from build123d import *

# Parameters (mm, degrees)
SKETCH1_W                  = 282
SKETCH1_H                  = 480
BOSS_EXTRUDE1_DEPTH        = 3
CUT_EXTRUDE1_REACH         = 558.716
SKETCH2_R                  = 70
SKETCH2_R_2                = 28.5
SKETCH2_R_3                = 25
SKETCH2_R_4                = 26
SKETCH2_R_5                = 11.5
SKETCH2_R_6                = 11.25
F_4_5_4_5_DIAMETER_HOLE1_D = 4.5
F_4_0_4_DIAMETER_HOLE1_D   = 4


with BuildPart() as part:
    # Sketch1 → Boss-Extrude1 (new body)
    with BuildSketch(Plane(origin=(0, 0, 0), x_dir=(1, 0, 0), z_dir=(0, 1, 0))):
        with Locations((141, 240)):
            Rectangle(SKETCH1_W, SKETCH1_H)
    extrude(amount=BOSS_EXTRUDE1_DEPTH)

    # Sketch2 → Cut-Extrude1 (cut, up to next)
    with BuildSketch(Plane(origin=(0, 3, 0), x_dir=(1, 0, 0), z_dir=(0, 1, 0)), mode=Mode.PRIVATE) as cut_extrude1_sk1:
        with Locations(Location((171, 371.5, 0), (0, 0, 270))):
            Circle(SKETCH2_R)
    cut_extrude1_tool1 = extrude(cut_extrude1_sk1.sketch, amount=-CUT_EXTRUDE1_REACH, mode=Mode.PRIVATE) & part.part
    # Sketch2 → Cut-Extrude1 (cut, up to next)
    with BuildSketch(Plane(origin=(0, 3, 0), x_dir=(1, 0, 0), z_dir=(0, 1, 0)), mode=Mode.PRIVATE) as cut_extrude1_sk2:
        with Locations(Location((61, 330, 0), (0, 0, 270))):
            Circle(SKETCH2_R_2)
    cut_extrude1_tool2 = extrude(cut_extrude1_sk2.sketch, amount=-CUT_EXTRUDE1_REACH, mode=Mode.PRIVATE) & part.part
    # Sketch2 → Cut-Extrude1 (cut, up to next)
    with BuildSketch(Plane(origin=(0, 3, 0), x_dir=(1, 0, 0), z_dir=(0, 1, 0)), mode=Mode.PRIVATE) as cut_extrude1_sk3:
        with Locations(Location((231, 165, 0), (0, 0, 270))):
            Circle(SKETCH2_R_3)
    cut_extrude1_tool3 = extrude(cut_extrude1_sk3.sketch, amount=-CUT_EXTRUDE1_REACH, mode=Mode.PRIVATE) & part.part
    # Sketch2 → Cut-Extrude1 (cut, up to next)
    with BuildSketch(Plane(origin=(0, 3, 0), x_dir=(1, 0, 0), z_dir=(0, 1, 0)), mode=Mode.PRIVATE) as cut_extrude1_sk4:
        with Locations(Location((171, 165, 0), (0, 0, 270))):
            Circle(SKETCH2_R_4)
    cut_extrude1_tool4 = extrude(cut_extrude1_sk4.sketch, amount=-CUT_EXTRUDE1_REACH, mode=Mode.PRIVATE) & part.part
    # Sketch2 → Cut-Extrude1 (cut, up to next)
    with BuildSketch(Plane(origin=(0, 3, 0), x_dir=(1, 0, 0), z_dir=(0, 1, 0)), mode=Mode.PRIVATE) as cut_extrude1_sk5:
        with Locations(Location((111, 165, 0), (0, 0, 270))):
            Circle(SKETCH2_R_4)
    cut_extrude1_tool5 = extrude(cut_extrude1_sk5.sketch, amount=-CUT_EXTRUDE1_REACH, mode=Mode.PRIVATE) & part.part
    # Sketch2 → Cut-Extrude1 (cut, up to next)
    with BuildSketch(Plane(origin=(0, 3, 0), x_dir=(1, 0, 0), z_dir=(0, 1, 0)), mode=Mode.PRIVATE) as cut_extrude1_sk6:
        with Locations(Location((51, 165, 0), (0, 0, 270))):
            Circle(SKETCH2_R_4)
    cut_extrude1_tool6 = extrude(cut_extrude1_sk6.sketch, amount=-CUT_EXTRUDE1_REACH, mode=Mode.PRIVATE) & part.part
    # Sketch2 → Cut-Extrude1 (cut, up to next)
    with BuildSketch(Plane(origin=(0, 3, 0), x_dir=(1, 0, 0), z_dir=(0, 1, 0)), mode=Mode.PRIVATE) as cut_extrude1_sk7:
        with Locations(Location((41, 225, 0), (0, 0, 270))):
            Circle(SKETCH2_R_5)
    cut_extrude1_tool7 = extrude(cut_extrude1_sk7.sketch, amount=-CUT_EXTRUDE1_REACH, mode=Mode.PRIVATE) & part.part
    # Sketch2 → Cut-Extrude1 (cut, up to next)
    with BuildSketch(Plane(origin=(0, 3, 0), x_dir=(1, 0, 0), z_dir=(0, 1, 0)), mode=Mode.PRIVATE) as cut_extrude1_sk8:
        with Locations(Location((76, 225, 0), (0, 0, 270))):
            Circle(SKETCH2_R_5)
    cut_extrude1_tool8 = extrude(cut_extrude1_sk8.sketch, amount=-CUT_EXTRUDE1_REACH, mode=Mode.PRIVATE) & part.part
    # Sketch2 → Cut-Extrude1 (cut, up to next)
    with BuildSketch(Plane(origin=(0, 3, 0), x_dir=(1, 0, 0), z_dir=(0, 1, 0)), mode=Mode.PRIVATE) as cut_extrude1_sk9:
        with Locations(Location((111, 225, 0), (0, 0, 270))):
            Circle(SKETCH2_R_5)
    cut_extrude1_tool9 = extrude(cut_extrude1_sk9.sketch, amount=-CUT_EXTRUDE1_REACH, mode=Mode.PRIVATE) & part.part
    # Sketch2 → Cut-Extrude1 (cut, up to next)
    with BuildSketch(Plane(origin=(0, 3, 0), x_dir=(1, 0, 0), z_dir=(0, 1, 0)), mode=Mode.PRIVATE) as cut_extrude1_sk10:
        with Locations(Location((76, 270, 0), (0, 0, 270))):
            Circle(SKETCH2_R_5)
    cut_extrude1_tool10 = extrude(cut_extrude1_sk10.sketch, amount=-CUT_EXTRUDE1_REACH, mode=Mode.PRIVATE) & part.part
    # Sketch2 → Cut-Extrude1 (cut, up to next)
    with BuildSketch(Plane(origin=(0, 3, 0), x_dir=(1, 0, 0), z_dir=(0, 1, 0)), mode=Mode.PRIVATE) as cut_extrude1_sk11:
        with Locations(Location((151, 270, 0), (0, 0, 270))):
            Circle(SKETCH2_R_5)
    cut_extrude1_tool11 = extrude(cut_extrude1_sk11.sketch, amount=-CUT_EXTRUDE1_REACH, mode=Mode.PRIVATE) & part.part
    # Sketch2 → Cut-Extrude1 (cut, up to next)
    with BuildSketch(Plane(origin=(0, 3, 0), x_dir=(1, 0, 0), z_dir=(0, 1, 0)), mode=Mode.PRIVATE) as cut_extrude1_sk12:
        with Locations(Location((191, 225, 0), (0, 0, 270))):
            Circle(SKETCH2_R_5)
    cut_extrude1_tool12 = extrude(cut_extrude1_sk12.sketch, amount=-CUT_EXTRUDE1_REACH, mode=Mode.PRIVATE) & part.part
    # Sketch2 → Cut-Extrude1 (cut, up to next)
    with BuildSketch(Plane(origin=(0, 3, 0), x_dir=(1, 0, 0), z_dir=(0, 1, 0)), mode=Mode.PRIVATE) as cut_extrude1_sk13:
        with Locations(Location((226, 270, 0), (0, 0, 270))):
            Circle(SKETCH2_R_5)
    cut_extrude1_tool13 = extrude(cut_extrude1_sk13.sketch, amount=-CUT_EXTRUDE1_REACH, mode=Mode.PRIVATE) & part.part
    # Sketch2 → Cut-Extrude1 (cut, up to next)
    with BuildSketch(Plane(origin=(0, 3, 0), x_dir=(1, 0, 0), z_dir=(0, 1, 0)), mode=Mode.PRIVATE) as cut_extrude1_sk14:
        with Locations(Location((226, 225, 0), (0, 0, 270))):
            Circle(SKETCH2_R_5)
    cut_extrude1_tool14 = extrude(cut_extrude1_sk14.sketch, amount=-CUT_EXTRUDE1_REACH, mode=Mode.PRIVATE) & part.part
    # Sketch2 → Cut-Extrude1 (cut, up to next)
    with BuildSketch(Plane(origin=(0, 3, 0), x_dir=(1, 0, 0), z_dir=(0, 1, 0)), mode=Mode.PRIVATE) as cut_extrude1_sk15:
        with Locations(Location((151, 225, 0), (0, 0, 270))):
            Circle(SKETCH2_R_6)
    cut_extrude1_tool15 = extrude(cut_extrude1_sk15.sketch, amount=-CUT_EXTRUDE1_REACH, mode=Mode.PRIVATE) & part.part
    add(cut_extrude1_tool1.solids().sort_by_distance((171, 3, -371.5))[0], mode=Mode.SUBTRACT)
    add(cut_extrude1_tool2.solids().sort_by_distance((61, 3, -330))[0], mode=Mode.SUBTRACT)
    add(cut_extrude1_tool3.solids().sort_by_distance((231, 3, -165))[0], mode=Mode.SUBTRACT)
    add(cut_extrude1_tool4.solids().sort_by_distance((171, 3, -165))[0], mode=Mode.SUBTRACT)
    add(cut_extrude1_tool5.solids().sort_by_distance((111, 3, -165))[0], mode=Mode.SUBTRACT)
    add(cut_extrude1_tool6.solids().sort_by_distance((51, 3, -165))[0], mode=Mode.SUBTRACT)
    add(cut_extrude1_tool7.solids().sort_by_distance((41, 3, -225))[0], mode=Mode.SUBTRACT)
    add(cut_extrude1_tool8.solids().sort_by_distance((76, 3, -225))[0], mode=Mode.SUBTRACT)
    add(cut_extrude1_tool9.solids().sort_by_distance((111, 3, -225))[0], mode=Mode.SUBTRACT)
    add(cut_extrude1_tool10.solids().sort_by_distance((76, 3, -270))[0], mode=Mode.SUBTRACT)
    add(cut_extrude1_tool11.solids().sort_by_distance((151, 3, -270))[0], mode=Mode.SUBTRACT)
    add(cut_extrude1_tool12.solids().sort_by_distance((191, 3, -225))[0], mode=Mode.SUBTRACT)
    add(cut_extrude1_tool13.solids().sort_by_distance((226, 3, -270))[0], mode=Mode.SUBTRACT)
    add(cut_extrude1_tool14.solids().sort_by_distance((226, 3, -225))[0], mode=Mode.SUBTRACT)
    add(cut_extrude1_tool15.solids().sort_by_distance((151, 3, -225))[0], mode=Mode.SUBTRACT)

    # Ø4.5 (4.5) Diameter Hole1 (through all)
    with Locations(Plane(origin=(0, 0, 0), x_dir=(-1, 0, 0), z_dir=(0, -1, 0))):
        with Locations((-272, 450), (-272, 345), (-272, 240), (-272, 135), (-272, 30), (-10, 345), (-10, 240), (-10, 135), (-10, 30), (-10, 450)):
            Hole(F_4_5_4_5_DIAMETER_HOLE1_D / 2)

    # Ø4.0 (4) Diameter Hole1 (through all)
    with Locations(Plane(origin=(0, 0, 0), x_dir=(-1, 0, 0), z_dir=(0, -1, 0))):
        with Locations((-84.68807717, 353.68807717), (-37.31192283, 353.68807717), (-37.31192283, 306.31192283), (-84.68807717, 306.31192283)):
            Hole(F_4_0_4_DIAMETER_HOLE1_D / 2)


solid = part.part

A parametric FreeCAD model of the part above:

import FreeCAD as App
import Part
import Sketcher

V = App.Vector
Q = App.Units.Quantity


def add_polygon(sketch, points):
    """Adds a closed chain of lines whose ends are joined by coincident constraints."""
    first, n = sketch.GeometryCount, len(points)
    for a, b in zip(points, points[1:] + points[:1]):
        sketch.addGeometry(Part.LineSegment(App.Vector(*a, 0), App.Vector(*b, 0)), False)
    for i in range(n):
        sketch.addConstraint(Sketcher.Constraint("Coincident", first + i, 2, first + (i + 1) % n, 1))

doc = App.newDocument("Part")
body = doc.addObject("PartDesign::Body", "Body")

sketch1 = body.newObject("Sketcher::SketchObject", "Sketch")
sketch1.AttachmentSupport = (doc.getObject("XZ_Plane"), [""])
sketch1.MapMode = "FlatFace"
add_polygon(sketch1, [(0, -480), (0, 0), (282, 0), (282, -480)])
sketch1.addConstraint(Sketcher.Constraint("Vertical", 0))
sketch1.addConstraint(Sketcher.Constraint("Horizontal", 1))
sketch1.addConstraint(Sketcher.Constraint("Vertical", 2))
sketch1.addConstraint(Sketcher.Constraint("Horizontal", 3))
sketch1.addConstraint(Sketcher.Constraint("Coincident", 0, 2, -1, 1))
sketch1.addConstraint(Sketcher.Constraint("DistanceX", 1, 1, 1, 2, Q("282 mm")))
sketch1.addConstraint(Sketcher.Constraint("DistanceY", 0, 1, 0, 2, Q("480 mm")))
pad1 = body.newObject("PartDesign::Pad", "Pad")
pad1.Profile = sketch1
pad1.Length = 3
pad1.Reversed = True

sketch2 = body.newObject("Sketcher::SketchObject", "Sketch001")
sketch2.AttachmentSupport = (doc.getObject("XZ_Plane"), [""])
sketch2.MapMode = "FlatFace"
sketch2.AttachmentOffset = App.Placement(V(0, 0, -3), App.Rotation())
sketch2.addGeometry(Part.Circle(V(171, -371.5, 0), V(0, 0, 1), 70), False)
sketch2.addConstraint(Sketcher.Constraint("Diameter", 0, Q("140 mm")))
sketch2.addConstraint(Sketcher.Constraint("DistanceX", -1, 1, 0, 3, Q("171 mm")))
sketch2.addConstraint(Sketcher.Constraint("DistanceY", 0, 3, -1, 1, Q("371.5 mm")))
pocket1 = body.newObject("PartDesign::Pocket", "Pocket")
pocket1.Profile = sketch2
pocket1.Type = "UpToFirst"
pocket1.Reversed = True

sketch3 = body.newObject("Sketcher::SketchObject", "Sketch002")
sketch3.AttachmentSupport = (doc.getObject("XZ_Plane"), [""])
sketch3.MapMode = "FlatFace"
sketch3.AttachmentOffset = App.Placement(V(0, 0, -3), App.Rotation())
sketch3.addGeometry(Part.Circle(V(61, -330, 0), V(0, 0, 1), 28.5), False)
sketch3.addConstraint(Sketcher.Constraint("Diameter", 0, Q("57 mm")))
sketch3.addConstraint(Sketcher.Constraint("DistanceX", -1, 1, 0, 3, Q("61 mm")))
sketch3.addConstraint(Sketcher.Constraint("DistanceY", 0, 3, -1, 1, Q("330 mm")))
pocket2 = body.newObject("PartDesign::Pocket", "Pocket001")
pocket2.Profile = sketch3
pocket2.Type = "UpToFirst"
pocket2.Reversed = True

sketch4 = body.newObject("Sketcher::SketchObject", "Sketch003")
sketch4.AttachmentSupport = (doc.getObject("XZ_Plane"), [""])
sketch4.MapMode = "FlatFace"
sketch4.AttachmentOffset = App.Placement(V(0, 0, -3), App.Rotation())
sketch4.addGeometry(Part.Circle(V(231, -165, 0), V(0, 0, 1), 25), False)
sketch4.addConstraint(Sketcher.Constraint("Diameter", 0, Q("50 mm")))
sketch4.addConstraint(Sketcher.Constraint("DistanceX", -1, 1, 0, 3, Q("231 mm")))
sketch4.addConstraint(Sketcher.Constraint("DistanceY", 0, 3, -1, 1, Q("165 mm")))
pocket3 = body.newObject("PartDesign::Pocket", "Pocket002")
pocket3.Profile = sketch4
pocket3.Type = "UpToFirst"
pocket3.Reversed = True

sketch5 = body.newObject("Sketcher::SketchObject", "Sketch004")
sketch5.AttachmentSupport = (doc.getObject("XZ_Plane"), [""])
sketch5.MapMode = "FlatFace"
sketch5.AttachmentOffset = App.Placement(V(0, 0, -3), App.Rotation())
sketch5.addGeometry(Part.Circle(V(171, -165, 0), V(0, 0, 1), 26), False)
sketch5.addConstraint(Sketcher.Constraint("Diameter", 0, Q("52 mm")))
sketch5.addConstraint(Sketcher.Constraint("DistanceX", -1, 1, 0, 3, Q("171 mm")))
sketch5.addConstraint(Sketcher.Constraint("DistanceY", 0, 3, -1, 1, Q("165 mm")))
pocket4 = body.newObject("PartDesign::Pocket", "Pocket003")
pocket4.Profile = sketch5
pocket4.Type = "UpToFirst"
pocket4.Reversed = True

sketch6 = body.newObject("Sketcher::SketchObject", "Sketch005")
sketch6.AttachmentSupport = (doc.getObject("XZ_Plane"), [""])
sketch6.MapMode = "FlatFace"
sketch6.AttachmentOffset = App.Placement(V(0, 0, -3), App.Rotation())
sketch6.addGeometry(Part.Circle(V(111, -165, 0), V(0, 0, 1), 26), False)
sketch6.addConstraint(Sketcher.Constraint("Diameter", 0, Q("52 mm")))
sketch6.addConstraint(Sketcher.Constraint("DistanceX", -1, 1, 0, 3, Q("111 mm")))
sketch6.addConstraint(Sketcher.Constraint("DistanceY", 0, 3, -1, 1, Q("165 mm")))
pocket5 = body.newObject("PartDesign::Pocket", "Pocket004")
pocket5.Profile = sketch6
pocket5.Type = "UpToFirst"
pocket5.Reversed = True

sketch7 = body.newObject("Sketcher::SketchObject", "Sketch006")
sketch7.AttachmentSupport = (doc.getObject("XZ_Plane"), [""])
sketch7.MapMode = "FlatFace"
sketch7.AttachmentOffset = App.Placement(V(0, 0, -3), App.Rotation())
sketch7.addGeometry(Part.Circle(V(51, -165, 0), V(0, 0, 1), 26), False)
sketch7.addConstraint(Sketcher.Constraint("Diameter", 0, Q("52 mm")))
sketch7.addConstraint(Sketcher.Constraint("DistanceX", -1, 1, 0, 3, Q("51 mm")))
sketch7.addConstraint(Sketcher.Constraint("DistanceY", 0, 3, -1, 1, Q("165 mm")))
pocket6 = body.newObject("PartDesign::Pocket", "Pocket005")
pocket6.Profile = sketch7
pocket6.Type = "UpToFirst"
pocket6.Reversed = True

sketch8 = body.newObject("Sketcher::SketchObject", "Sketch007")
sketch8.AttachmentSupport = (doc.getObject("XZ_Plane"), [""])
sketch8.MapMode = "FlatFace"
sketch8.AttachmentOffset = App.Placement(V(0, 0, -3), App.Rotation())
sketch8.addGeometry(Part.Circle(V(41, -225, 0), V(0, 0, 1), 11.5), False)
sketch8.addConstraint(Sketcher.Constraint("Diameter", 0, Q("23 mm")))
sketch8.addConstraint(Sketcher.Constraint("DistanceX", -1, 1, 0, 3, Q("41 mm")))
sketch8.addConstraint(Sketcher.Constraint("DistanceY", 0, 3, -1, 1, Q("225 mm")))
pocket7 = body.newObject("PartDesign::Pocket", "Pocket006")
pocket7.Profile = sketch8
pocket7.Type = "UpToFirst"
pocket7.Reversed = True

sketch9 = body.newObject("Sketcher::SketchObject", "Sketch008")
sketch9.AttachmentSupport = (doc.getObject("XZ_Plane"), [""])
sketch9.MapMode = "FlatFace"
sketch9.AttachmentOffset = App.Placement(V(0, 0, -3), App.Rotation())
sketch9.addGeometry(Part.Circle(V(76, -225, 0), V(0, 0, 1), 11.5), False)
sketch9.addConstraint(Sketcher.Constraint("Diameter", 0, Q("23 mm")))
sketch9.addConstraint(Sketcher.Constraint("DistanceX", -1, 1, 0, 3, Q("76 mm")))
sketch9.addConstraint(Sketcher.Constraint("DistanceY", 0, 3, -1, 1, Q("225 mm")))
pocket8 = body.newObject("PartDesign::Pocket", "Pocket007")
pocket8.Profile = sketch9
pocket8.Type = "UpToFirst"
pocket8.Reversed = True

sketch10 = body.newObject("Sketcher::SketchObject", "Sketch009")
sketch10.AttachmentSupport = (doc.getObject("XZ_Plane"), [""])
sketch10.MapMode = "FlatFace"
sketch10.AttachmentOffset = App.Placement(V(0, 0, -3), App.Rotation())
sketch10.addGeometry(Part.Circle(V(111, -225, 0), V(0, 0, 1), 11.5), False)
sketch10.addConstraint(Sketcher.Constraint("Diameter", 0, Q("23 mm")))
sketch10.addConstraint(Sketcher.Constraint("DistanceX", -1, 1, 0, 3, Q("111 mm")))
sketch10.addConstraint(Sketcher.Constraint("DistanceY", 0, 3, -1, 1, Q("225 mm")))
pocket9 = body.newObject("PartDesign::Pocket", "Pocket008")
pocket9.Profile = sketch10
pocket9.Type = "UpToFirst"
pocket9.Reversed = True

sketch11 = body.newObject("Sketcher::SketchObject", "Sketch010")
sketch11.AttachmentSupport = (doc.getObject("XZ_Plane"), [""])
sketch11.MapMode = "FlatFace"
sketch11.AttachmentOffset = App.Placement(V(0, 0, -3), App.Rotation())
sketch11.addGeometry(Part.Circle(V(76, -270, 0), V(0, 0, 1), 11.5), False)
sketch11.addConstraint(Sketcher.Constraint("Diameter", 0, Q("23 mm")))
sketch11.addConstraint(Sketcher.Constraint("DistanceX", -1, 1, 0, 3, Q("76 mm")))
sketch11.addConstraint(Sketcher.Constraint("DistanceY", 0, 3, -1, 1, Q("270 mm")))
pocket10 = body.newObject("PartDesign::Pocket", "Pocket009")
pocket10.Profile = sketch11
pocket10.Type = "UpToFirst"
pocket10.Reversed = True

sketch12 = body.newObject("Sketcher::SketchObject", "Sketch011")
sketch12.AttachmentSupport = (doc.getObject("XZ_Plane"), [""])
sketch12.MapMode = "FlatFace"
sketch12.AttachmentOffset = App.Placement(V(0, 0, -3), App.Rotation())
sketch12.addGeometry(Part.Circle(V(151, -270, 0), V(0, 0, 1), 11.5), False)
sketch12.addConstraint(Sketcher.Constraint("Diameter", 0, Q("23 mm")))
sketch12.addConstraint(Sketcher.Constraint("DistanceX", -1, 1, 0, 3, Q("151 mm")))
sketch12.addConstraint(Sketcher.Constraint("DistanceY", 0, 3, -1, 1, Q("270 mm")))
pocket11 = body.newObject("PartDesign::Pocket", "Pocket010")
pocket11.Profile = sketch12
pocket11.Type = "UpToFirst"
pocket11.Reversed = True

sketch13 = body.newObject("Sketcher::SketchObject", "Sketch012")
sketch13.AttachmentSupport = (doc.getObject("XZ_Plane"), [""])
sketch13.MapMode = "FlatFace"
sketch13.AttachmentOffset = App.Placement(V(0, 0, -3), App.Rotation())
sketch13.addGeometry(Part.Circle(V(191, -225, 0), V(0, 0, 1), 11.5), False)
sketch13.addConstraint(Sketcher.Constraint("Diameter", 0, Q("23 mm")))
sketch13.addConstraint(Sketcher.Constraint("DistanceX", -1, 1, 0, 3, Q("191 mm")))
sketch13.addConstraint(Sketcher.Constraint("DistanceY", 0, 3, -1, 1, Q("225 mm")))
pocket12 = body.newObject("PartDesign::Pocket", "Pocket011")
pocket12.Profile = sketch13
pocket12.Type = "UpToFirst"
pocket12.Reversed = True

sketch14 = body.newObject("Sketcher::SketchObject", "Sketch013")
sketch14.AttachmentSupport = (doc.getObject("XZ_Plane"), [""])
sketch14.MapMode = "FlatFace"
sketch14.AttachmentOffset = App.Placement(V(0, 0, -3), App.Rotation())
sketch14.addGeometry(Part.Circle(V(226, -270, 0), V(0, 0, 1), 11.5), False)
sketch14.addConstraint(Sketcher.Constraint("Diameter", 0, Q("23 mm")))
sketch14.addConstraint(Sketcher.Constraint("DistanceX", -1, 1, 0, 3, Q("226 mm")))
sketch14.addConstraint(Sketcher.Constraint("DistanceY", 0, 3, -1, 1, Q("270 mm")))
pocket13 = body.newObject("PartDesign::Pocket", "Pocket012")
pocket13.Profile = sketch14
pocket13.Type = "UpToFirst"
pocket13.Reversed = True

sketch15 = body.newObject("Sketcher::SketchObject", "Sketch014")
sketch15.AttachmentSupport = (doc.getObject("XZ_Plane"), [""])
sketch15.MapMode = "FlatFace"
sketch15.AttachmentOffset = App.Placement(V(0, 0, -3), App.Rotation())
sketch15.addGeometry(Part.Circle(V(226, -225, 0), V(0, 0, 1), 11.5), False)
sketch15.addConstraint(Sketcher.Constraint("Diameter", 0, Q("23 mm")))
sketch15.addConstraint(Sketcher.Constraint("DistanceX", -1, 1, 0, 3, Q("226 mm")))
sketch15.addConstraint(Sketcher.Constraint("DistanceY", 0, 3, -1, 1, Q("225 mm")))
pocket14 = body.newObject("PartDesign::Pocket", "Pocket013")
pocket14.Profile = sketch15
pocket14.Type = "UpToFirst"
pocket14.Reversed = True

sketch16 = body.newObject("Sketcher::SketchObject", "Sketch015")
sketch16.AttachmentSupport = (doc.getObject("XZ_Plane"), [""])
sketch16.MapMode = "FlatFace"
sketch16.AttachmentOffset = App.Placement(V(0, 0, -3), App.Rotation())
sketch16.addGeometry(Part.Circle(V(151, -225, 0), V(0, 0, 1), 11.25), False)
sketch16.addConstraint(Sketcher.Constraint("Diameter", 0, Q("22.5 mm")))
sketch16.addConstraint(Sketcher.Constraint("DistanceX", -1, 1, 0, 3, Q("151 mm")))
sketch16.addConstraint(Sketcher.Constraint("DistanceY", 0, 3, -1, 1, Q("225 mm")))
pocket15 = body.newObject("PartDesign::Pocket", "Pocket014")
pocket15.Profile = sketch16
pocket15.Type = "UpToFirst"
pocket15.Reversed = True

sketch17 = body.newObject("Sketcher::SketchObject", "Sketch016")
sketch17.AttachmentSupport = (doc.getObject("XZ_Plane"), [""])
sketch17.MapMode = "FlatFace"
sketch17.addGeometry(Part.Circle(V(272, -450, 0), V(0, 0, 1), 2.25), False)
sketch17.addGeometry(Part.Circle(V(272, -345, 0), V(0, 0, 1), 2.25), False)
sketch17.addGeometry(Part.Circle(V(272, -240, 0), V(0, 0, 1), 2.25), False)
sketch17.addGeometry(Part.Circle(V(272, -135, 0), V(0, 0, 1), 2.25), False)
sketch17.addGeometry(Part.Circle(V(272, -30, 0), V(0, 0, 1), 2.25), False)
sketch17.addGeometry(Part.Circle(V(10, -345, 0), V(0, 0, 1), 2.25), False)
sketch17.addGeometry(Part.Circle(V(10, -240, 0), V(0, 0, 1), 2.25), False)
sketch17.addGeometry(Part.Circle(V(10, -135, 0), V(0, 0, 1), 2.25), False)
sketch17.addGeometry(Part.Circle(V(10, -30, 0), V(0, 0, 1), 2.25), False)
sketch17.addGeometry(Part.Circle(V(10, -450, 0), V(0, 0, 1), 2.25), False)
sketch17.addConstraint(Sketcher.Constraint("Equal", 0, 1))
sketch17.addConstraint(Sketcher.Constraint("Equal", 1, 2))
sketch17.addConstraint(Sketcher.Constraint("Equal", 2, 3))
sketch17.addConstraint(Sketcher.Constraint("Equal", 3, 4))
sketch17.addConstraint(Sketcher.Constraint("Equal", 4, 5))
sketch17.addConstraint(Sketcher.Constraint("Equal", 5, 6))
sketch17.addConstraint(Sketcher.Constraint("Equal", 6, 7))
sketch17.addConstraint(Sketcher.Constraint("Equal", 7, 8))
sketch17.addConstraint(Sketcher.Constraint("Equal", 8, 9))
sketch17.addConstraint(Sketcher.Constraint("Horizontal", 1, 3, 5, 3))
sketch17.addConstraint(Sketcher.Constraint("Horizontal", 2, 3, 6, 3))
sketch17.addConstraint(Sketcher.Constraint("Horizontal", 3, 3, 7, 3))
sketch17.addConstraint(Sketcher.Constraint("Horizontal", 4, 3, 8, 3))
sketch17.addConstraint(Sketcher.Constraint("Horizontal", 0, 3, 9, 3))
sketch17.addConstraint(Sketcher.Constraint("Vertical", 0, 3, 1, 3))
sketch17.addConstraint(Sketcher.Constraint("Vertical", 1, 3, 2, 3))
sketch17.addConstraint(Sketcher.Constraint("Vertical", 2, 3, 3, 3))
sketch17.addConstraint(Sketcher.Constraint("Vertical", 3, 3, 4, 3))
sketch17.addConstraint(Sketcher.Constraint("Vertical", 5, 3, 6, 3))
sketch17.addConstraint(Sketcher.Constraint("Vertical", 6, 3, 7, 3))
sketch17.addConstraint(Sketcher.Constraint("Vertical", 7, 3, 8, 3))
sketch17.addConstraint(Sketcher.Constraint("Vertical", 8, 3, 9, 3))
sketch17.addConstraint(Sketcher.Constraint("Diameter", 0, Q("4.5 mm")))
sketch17.addConstraint(Sketcher.Constraint("DistanceX", -1, 1, 0, 3, Q("272 mm")))
sketch17.addConstraint(Sketcher.Constraint("DistanceY", 0, 3, -1, 1, Q("450 mm")))
sketch17.addConstraint(Sketcher.Constraint("DistanceY", 1, 3, -1, 1, Q("345 mm")))
sketch17.addConstraint(Sketcher.Constraint("DistanceY", 2, 3, -1, 1, Q("240 mm")))
sketch17.addConstraint(Sketcher.Constraint("DistanceY", 3, 3, -1, 1, Q("135 mm")))
sketch17.addConstraint(Sketcher.Constraint("DistanceY", 4, 3, -1, 1, Q("30 mm")))
sketch17.addConstraint(Sketcher.Constraint("DistanceX", -1, 1, 5, 3, Q("10 mm")))
doc.recompute()
hole = body.newObject("PartDesign::Hole", "Hole")
hole.Profile = sketch17
hole.ThreadType = "None"
hole.Diameter = 4.5
hole.DepthType = "ThroughAll"

sketch18 = body.newObject("Sketcher::SketchObject", "Sketch017")
sketch18.AttachmentSupport = (doc.getObject("XZ_Plane"), [""])
sketch18.MapMode = "FlatFace"
sketch18.addGeometry(Part.Circle(V(84.688077, -353.688077, 0), V(0, 0, 1), 2), False)
sketch18.addGeometry(Part.Circle(V(37.311923, -353.688077, 0), V(0, 0, 1), 2), False)
sketch18.addGeometry(Part.Circle(V(37.311923, -306.311923, 0), V(0, 0, 1), 2), False)
sketch18.addGeometry(Part.Circle(V(84.688077, -306.311923, 0), V(0, 0, 1), 2), False)
sketch18.addConstraint(Sketcher.Constraint("Equal", 0, 1))
sketch18.addConstraint(Sketcher.Constraint("Equal", 1, 2))
sketch18.addConstraint(Sketcher.Constraint("Equal", 2, 3))
sketch18.addConstraint(Sketcher.Constraint("Horizontal", 0, 3, 1, 3))
sketch18.addConstraint(Sketcher.Constraint("Horizontal", 2, 3, 3, 3))
sketch18.addConstraint(Sketcher.Constraint("Vertical", 1, 3, 2, 3))
sketch18.addConstraint(Sketcher.Constraint("Vertical", 0, 3, 3, 3))
sketch18.addConstraint(Sketcher.Constraint("Diameter", 0, Q("4 mm")))
sketch18.addConstraint(Sketcher.Constraint("DistanceX", -1, 1, 0, 3, Q("84.688077 mm")))
sketch18.addConstraint(Sketcher.Constraint("DistanceY", 0, 3, -1, 1, Q("353.688077 mm")))
sketch18.addConstraint(Sketcher.Constraint("DistanceX", -1, 1, 1, 3, Q("37.311923 mm")))
sketch18.addConstraint(Sketcher.Constraint("DistanceY", 2, 3, -1, 1, Q("306.311923 mm")))
doc.recompute()
hole2 = body.newObject("PartDesign::Hole", "Hole001")
hole2.Profile = sketch18
hole2.ThreadType = "None"
hole2.Diameter = 4
hole2.DepthType = "ThroughAll"

doc.recompute()
